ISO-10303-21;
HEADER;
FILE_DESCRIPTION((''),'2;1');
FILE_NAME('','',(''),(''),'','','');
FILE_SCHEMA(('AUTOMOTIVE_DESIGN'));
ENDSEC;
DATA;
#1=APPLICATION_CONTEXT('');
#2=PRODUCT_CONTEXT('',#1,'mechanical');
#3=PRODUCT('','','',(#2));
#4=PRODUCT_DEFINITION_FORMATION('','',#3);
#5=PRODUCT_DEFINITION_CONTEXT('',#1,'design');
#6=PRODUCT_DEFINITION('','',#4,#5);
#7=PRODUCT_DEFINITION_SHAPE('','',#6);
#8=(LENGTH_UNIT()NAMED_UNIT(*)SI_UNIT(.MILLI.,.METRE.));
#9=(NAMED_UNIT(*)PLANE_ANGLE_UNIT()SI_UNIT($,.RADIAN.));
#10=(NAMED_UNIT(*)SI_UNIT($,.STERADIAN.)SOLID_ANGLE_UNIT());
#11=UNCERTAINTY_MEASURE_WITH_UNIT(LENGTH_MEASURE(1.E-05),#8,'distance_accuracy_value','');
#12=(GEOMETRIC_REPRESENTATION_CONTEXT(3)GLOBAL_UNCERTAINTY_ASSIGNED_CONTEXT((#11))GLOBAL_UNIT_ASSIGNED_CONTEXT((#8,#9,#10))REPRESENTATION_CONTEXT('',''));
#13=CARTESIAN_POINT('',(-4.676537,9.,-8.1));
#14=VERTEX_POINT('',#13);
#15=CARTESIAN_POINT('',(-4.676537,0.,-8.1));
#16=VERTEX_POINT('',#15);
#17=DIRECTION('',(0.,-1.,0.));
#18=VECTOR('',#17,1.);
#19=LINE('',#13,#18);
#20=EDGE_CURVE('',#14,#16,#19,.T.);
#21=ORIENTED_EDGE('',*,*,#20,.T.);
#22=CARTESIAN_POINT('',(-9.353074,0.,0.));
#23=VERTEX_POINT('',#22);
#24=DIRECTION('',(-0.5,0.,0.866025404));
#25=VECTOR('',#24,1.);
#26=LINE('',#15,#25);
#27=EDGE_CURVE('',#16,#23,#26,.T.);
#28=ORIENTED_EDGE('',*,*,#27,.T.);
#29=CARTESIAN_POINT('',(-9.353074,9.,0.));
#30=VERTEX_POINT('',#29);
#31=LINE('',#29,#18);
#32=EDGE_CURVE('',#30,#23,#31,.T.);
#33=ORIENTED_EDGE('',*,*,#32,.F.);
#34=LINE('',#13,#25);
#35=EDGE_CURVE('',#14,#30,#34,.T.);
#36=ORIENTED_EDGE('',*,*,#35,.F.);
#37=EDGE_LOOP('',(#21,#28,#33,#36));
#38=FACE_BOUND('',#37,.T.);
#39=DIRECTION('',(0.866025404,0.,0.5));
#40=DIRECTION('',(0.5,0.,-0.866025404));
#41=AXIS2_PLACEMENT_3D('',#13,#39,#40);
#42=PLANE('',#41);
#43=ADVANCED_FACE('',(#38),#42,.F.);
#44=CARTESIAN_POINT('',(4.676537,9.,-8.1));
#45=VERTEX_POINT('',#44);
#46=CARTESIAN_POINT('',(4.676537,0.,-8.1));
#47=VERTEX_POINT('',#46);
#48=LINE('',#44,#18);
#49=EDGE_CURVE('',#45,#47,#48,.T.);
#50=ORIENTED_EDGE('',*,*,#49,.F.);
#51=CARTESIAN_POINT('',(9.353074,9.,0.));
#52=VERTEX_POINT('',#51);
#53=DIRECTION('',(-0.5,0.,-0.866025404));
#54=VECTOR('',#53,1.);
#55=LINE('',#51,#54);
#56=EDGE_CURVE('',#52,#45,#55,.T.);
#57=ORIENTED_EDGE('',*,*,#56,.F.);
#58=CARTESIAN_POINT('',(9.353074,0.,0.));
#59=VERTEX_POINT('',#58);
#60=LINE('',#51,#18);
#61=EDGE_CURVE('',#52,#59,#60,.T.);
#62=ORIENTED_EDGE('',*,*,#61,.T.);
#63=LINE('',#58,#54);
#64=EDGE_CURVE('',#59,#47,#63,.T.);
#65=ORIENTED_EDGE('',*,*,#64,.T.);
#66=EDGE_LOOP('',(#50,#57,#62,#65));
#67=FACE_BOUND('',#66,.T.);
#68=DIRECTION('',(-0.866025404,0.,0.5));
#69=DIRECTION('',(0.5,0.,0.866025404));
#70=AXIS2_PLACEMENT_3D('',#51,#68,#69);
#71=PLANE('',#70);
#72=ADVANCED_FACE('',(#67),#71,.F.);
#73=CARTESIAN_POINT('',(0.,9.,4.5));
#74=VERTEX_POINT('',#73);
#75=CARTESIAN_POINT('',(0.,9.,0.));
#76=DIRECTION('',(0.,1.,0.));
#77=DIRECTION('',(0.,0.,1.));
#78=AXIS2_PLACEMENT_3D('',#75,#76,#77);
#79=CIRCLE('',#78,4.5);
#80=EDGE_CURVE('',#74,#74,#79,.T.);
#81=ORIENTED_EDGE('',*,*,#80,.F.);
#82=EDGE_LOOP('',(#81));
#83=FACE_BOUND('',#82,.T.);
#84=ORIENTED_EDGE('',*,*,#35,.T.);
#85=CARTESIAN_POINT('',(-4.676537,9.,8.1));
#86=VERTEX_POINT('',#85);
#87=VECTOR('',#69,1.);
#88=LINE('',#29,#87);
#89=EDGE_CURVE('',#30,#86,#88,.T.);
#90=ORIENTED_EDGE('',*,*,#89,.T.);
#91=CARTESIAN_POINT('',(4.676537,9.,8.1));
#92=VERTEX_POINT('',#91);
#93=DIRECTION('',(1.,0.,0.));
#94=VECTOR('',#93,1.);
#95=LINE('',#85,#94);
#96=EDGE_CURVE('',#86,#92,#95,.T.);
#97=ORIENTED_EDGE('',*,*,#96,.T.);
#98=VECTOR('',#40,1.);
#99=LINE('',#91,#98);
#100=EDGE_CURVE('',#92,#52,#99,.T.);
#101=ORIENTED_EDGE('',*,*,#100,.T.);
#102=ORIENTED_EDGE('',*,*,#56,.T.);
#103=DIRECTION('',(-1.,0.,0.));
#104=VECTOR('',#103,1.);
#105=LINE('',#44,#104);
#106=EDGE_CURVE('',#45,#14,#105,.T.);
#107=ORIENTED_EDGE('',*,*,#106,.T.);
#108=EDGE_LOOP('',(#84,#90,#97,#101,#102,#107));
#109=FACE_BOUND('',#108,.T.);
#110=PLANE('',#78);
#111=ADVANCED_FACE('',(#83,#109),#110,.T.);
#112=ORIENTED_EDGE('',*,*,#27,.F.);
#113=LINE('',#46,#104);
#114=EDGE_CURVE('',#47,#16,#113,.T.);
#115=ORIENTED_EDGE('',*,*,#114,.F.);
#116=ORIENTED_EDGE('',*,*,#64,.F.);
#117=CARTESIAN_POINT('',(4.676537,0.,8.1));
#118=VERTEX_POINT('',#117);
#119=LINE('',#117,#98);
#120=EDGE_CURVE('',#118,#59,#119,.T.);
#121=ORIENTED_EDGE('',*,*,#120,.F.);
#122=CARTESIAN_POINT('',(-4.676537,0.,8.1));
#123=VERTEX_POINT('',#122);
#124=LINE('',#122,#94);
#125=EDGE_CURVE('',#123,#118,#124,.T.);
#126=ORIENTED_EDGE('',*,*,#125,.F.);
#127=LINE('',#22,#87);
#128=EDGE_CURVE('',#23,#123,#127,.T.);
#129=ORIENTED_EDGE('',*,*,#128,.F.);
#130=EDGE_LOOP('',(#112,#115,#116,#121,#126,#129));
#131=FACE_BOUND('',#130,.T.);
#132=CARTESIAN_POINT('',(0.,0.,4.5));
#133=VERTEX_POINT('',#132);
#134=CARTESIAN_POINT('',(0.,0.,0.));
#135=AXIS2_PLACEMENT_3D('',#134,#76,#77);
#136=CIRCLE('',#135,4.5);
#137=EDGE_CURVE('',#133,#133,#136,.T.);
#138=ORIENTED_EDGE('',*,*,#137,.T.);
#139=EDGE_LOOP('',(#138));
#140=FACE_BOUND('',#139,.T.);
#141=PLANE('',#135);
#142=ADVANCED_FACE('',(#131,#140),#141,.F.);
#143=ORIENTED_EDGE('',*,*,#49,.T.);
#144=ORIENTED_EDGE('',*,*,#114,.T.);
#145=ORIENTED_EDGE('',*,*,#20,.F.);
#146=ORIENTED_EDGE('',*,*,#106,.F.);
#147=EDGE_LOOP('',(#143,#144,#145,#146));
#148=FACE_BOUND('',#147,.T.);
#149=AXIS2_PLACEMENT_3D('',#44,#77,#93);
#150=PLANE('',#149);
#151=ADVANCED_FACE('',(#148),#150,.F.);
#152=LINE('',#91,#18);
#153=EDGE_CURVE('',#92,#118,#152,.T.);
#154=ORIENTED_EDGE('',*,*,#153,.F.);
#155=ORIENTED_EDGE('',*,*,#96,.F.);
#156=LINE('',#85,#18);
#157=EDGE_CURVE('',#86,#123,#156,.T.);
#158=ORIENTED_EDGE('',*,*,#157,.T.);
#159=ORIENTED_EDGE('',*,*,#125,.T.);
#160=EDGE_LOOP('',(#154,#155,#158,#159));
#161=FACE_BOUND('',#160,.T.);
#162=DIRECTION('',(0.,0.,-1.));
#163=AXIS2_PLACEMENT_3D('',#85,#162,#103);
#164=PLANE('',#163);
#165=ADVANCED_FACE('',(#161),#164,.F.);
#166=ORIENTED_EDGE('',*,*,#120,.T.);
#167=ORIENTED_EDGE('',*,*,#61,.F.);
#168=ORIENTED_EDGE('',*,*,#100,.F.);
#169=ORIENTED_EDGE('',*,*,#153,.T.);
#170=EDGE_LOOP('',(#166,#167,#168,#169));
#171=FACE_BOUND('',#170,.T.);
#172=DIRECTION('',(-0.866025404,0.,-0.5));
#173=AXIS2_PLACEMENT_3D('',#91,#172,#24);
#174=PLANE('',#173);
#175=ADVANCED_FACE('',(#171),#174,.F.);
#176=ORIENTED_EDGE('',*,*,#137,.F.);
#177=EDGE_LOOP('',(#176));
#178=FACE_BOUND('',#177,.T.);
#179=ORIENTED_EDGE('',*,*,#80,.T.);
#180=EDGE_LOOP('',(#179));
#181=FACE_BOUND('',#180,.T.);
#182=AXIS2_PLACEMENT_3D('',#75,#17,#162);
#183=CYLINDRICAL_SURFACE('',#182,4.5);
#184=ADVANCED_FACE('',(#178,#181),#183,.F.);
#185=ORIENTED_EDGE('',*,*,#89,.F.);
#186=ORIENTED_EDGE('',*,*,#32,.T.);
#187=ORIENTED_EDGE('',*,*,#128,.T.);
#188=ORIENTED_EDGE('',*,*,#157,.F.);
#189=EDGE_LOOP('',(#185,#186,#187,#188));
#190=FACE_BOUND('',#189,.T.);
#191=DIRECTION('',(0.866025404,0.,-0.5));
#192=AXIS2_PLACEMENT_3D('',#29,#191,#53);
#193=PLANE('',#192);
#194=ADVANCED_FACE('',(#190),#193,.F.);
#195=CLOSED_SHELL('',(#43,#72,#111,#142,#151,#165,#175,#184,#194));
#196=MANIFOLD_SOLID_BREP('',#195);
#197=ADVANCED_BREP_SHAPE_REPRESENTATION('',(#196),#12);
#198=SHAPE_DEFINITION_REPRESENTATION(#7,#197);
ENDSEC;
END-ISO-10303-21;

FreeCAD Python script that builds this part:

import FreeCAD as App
import Part
import Sketcher
Q = App.Units.Quantity

doc = App.newDocument("Part")
body = doc.addObject("PartDesign::Body", "Body")

sketch1 = body.newObject("Sketcher::SketchObject", "Sketch")
sketch1.AttachmentSupport = (doc.getObject("XZ_Plane"), [""])
sketch1.MapMode = "FlatFace"
sketch1.addGeometry(Part.LineSegment(App.Vector(4.676537, -8.1, 0), App.Vector(-4.676537, -8.1, 0)), False)
sketch1.addGeometry(Part.LineSegment(App.Vector(-4.676537, -8.1, 0), App.Vector(-9.353074, 0, 0)), False)
sketch1.addGeometry(Part.LineSegment(App.Vector(-9.353074, 0, 0), App.Vector(-4.676537, 8.1, 0)), False)
sketch1.addGeometry(Part.LineSegment(App.Vector(-4.676537, 8.1, 0), App.Vector(4.676537, 8.1, 0)), False)
sketch1.addGeometry(Part.LineSegment(App.Vector(4.676537, 8.1, 0), App.Vector(9.353074, 0, 0)), False)
sketch1.addGeometry(Part.LineSegment(App.Vector(9.353074, 0, 0), App.Vector(4.676537, -8.1, 0)), False)
sketch1.addGeometry(Part.Circle(App.Vector(0, 0, 0), App.Vector(0, 0, 1), 4.5), False)
sketch1.addConstraint(Sketcher.Constraint("Coincident", 0, 2, 1, 1))
sketch1.addConstraint(Sketcher.Constraint("Coincident", 1, 2, 2, 1))
sketch1.addConstraint(Sketcher.Constraint("Coincident", 2, 2, 3, 1))
sketch1.addConstraint(Sketcher.Constraint("Coincident", 3, 2, 4, 1))
sketch1.addConstraint(Sketcher.Constraint("Coincident", 4, 2, 5, 1))
sketch1.addConstraint(Sketcher.Constraint("Coincident", 5, 2, 0, 1))
sketch1.addConstraint(Sketcher.Constraint("Horizontal", 0))
sketch1.addConstraint(Sketcher.Constraint("Horizontal", 3))
sketch1.addConstraint(Sketcher.Constraint("Coincident", 6, 3, -1, 1))
sketch1.addConstraint(Sketcher.Constraint("Symmetric", 0, 2, 3, 2, -1, 1))
sketch1.addConstraint(Sketcher.Constraint("Symmetric", 1, 2, 4, 2, -1, 1))
sketch1.addConstraint(Sketcher.Constraint("PointOnObject", 1, 2, -1))
sketch1.addConstraint(Sketcher.Constraint("Parallel", 2, 5))
sketch1.addConstraint(Sketcher.Constraint("Vertical", 0, 2, 2, 2))
sketch1.addConstraint(Sketcher.Constraint("Diameter", 6, Q("9 mm")))
sketch1.addConstraint(Sketcher.Constraint("Angle", 1, Q("120 deg")))
sketch1.addConstraint(Sketcher.Constraint("DistanceY", 0, 2, -1, 1, Q("8.1 mm")))
sketch1.addConstraint(Sketcher.Constraint("DistanceX", 0, 2, 0, 1, Q("9.353074 mm")))
pad1 = body.newObject("PartDesign::Pad", "Pad")
pad1.Profile = sketch1
pad1.Length = 9
pad1.Reversed = True

doc.recompute()
